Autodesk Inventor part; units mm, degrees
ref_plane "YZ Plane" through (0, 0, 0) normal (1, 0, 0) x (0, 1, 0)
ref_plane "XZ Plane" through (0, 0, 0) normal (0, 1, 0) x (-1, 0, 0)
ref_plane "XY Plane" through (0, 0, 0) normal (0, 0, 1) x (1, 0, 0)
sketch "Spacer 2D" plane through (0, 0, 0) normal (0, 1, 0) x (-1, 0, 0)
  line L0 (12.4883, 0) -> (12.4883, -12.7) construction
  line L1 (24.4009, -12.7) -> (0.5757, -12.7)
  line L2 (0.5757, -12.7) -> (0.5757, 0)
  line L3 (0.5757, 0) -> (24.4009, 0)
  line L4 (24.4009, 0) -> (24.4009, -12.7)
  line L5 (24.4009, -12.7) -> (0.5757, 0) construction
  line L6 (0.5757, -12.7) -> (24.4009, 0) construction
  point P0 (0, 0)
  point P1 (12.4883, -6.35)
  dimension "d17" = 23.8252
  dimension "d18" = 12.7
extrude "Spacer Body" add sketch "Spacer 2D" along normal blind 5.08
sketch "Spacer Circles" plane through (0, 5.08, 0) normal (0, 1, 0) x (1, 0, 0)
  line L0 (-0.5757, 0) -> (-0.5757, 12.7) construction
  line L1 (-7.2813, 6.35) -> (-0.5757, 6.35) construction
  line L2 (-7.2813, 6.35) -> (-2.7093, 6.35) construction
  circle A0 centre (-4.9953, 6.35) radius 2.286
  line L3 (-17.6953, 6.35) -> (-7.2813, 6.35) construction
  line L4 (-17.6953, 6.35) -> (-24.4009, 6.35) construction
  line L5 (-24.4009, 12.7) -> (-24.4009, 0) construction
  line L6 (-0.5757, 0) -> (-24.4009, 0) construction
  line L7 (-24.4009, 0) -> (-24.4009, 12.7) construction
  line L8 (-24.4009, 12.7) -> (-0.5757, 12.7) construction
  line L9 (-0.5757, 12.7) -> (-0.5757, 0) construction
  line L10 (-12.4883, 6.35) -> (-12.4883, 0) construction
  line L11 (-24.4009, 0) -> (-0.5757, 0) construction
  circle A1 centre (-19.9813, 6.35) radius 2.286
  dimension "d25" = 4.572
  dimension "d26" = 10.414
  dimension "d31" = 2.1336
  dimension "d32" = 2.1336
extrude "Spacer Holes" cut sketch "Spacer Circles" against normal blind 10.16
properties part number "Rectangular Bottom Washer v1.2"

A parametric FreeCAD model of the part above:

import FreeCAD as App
import Part
import Sketcher
from FreeCAD import Vector
Q = App.Units.Quantity

doc = App.newDocument("Part")
params = doc.addObject("Spreadsheet::Sheet", "Params")
for row, (alias, value) in enumerate([
    ("sketch1_height", "0.5 in"),
    ("sketch1_width", "0.938 in"),
    ("pad1_length", "0.2 in"),
    ("sketch2_diameter", "0.18 in"),
    ("pocket1_length", "0.4 in"),
], start=1):
    params.set(f"A{row}", alias)
    params.set(f"B{row}", "=" + value)
    params.setAlias(f"B{row}", alias)

body = doc.addObject("PartDesign::Body", "Body")

# Sketch on XZ plane
sketch1 = body.newObject("Sketcher::SketchObject", "Sketch")
sketch1.AttachmentSupport = (doc.getObject("XZ_Plane"), [""])
sketch1.MapMode = "FlatFace"
sketch1.addGeometry(Part.LineSegment(Vector(-1, -13, 0), Vector(-24, -13, 0)), False)
sketch1.addGeometry(Part.LineSegment(Vector(-24, -13, 0), Vector(-24, 0, 0)), False)
sketch1.addGeometry(Part.LineSegment(Vector(-24, 0, 0), Vector(-1, 0, 0)), False)
sketch1.addGeometry(Part.LineSegment(Vector(-1, 0, 0), Vector(-1, -13, 0)), False)
sketch1.addConstraint(Sketcher.Constraint("Coincident", 0, 2, 1, 1))
sketch1.addConstraint(Sketcher.Constraint("Coincident", 1, 2, 2, 1))
sketch1.addConstraint(Sketcher.Constraint("Coincident", 2, 2, 3, 1))
sketch1.addConstraint(Sketcher.Constraint("Coincident", 3, 2, 0, 1))
sketch1.addConstraint(Sketcher.Constraint("Horizontal", 0))
sketch1.addConstraint(Sketcher.Constraint("Vertical", 1))
sketch1.addConstraint(Sketcher.Constraint("Horizontal", 2))
sketch1.addConstraint(Sketcher.Constraint("Vertical", 3))
sketch1.addConstraint(Sketcher.Constraint("PointOnObject", 1, 2, -1))
sketch1.addConstraint(Sketcher.Constraint("DistanceY", 1, 1, 1, 2, Q("0.5 in")))
sketch1.addConstraint(Sketcher.Constraint("DistanceX", 0, 2, 0, 1, Q("0.938 in")))
sketch1.addConstraint(Sketcher.Constraint("DistanceX", 0, 2, -1, 1, Q("24.401 mm")))
sketch1.setExpression("Constraints[9]", "Params.sketch1_height")
sketch1.setExpression("Constraints[10]", "Params.sketch1_width")
pad1 = body.newObject("PartDesign::Pad", "Pad")
pad1.Profile = sketch1
pad1.setExpression("Length", "Params.pad1_length")
pad1.Reversed = True

# Sketch on XZ plane
sketch2 = body.newObject("Sketcher::SketchObject", "Sketch001")
sketch2.AttachmentSupport = (doc.getObject("XZ_Plane"), [""])
sketch2.MapMode = "FlatFace"
sketch2.AttachmentOffset = App.Placement(Vector(0, 0, -0.2 * 25.4), App.Rotation())
sketch2.addGeometry(Part.Circle(Vector(-5, -6.3, 0), Vector(0, 0, 1), 2.3), False)
sketch2.addGeometry(Part.Circle(Vector(-20, -6.3, 0), Vector(0, 0, 1), 2.3), False)
sketch2.addConstraint(Sketcher.Constraint("Equal", 0, 1))
sketch2.addConstraint(Sketcher.Constraint("Horizontal", 0, 3, 1, 3))
sketch2.addConstraint(Sketcher.Constraint("Diameter", 0, Q("0.18 in")))
sketch2.addConstraint(Sketcher.Constraint("DistanceY", 0, 3, -1, 1, Q("0.25 in")))
sketch2.addConstraint(Sketcher.Constraint("DistanceX", 1, 3, 0, 3, Q("0.59 in")))
sketch2.addConstraint(Sketcher.Constraint("DistanceX", 0, 3, -1, 1, Q("4.9953 mm")))
sketch2.setExpression("Constraints[2]", "Params.sketch2_diameter")
pocket1 = body.newObject("PartDesign::Pocket", "Pocket")
pocket1.Profile = sketch2
pocket1.setExpression("Length", "Params.pocket1_length")
pocket1.Reversed = True

doc.recompute()
